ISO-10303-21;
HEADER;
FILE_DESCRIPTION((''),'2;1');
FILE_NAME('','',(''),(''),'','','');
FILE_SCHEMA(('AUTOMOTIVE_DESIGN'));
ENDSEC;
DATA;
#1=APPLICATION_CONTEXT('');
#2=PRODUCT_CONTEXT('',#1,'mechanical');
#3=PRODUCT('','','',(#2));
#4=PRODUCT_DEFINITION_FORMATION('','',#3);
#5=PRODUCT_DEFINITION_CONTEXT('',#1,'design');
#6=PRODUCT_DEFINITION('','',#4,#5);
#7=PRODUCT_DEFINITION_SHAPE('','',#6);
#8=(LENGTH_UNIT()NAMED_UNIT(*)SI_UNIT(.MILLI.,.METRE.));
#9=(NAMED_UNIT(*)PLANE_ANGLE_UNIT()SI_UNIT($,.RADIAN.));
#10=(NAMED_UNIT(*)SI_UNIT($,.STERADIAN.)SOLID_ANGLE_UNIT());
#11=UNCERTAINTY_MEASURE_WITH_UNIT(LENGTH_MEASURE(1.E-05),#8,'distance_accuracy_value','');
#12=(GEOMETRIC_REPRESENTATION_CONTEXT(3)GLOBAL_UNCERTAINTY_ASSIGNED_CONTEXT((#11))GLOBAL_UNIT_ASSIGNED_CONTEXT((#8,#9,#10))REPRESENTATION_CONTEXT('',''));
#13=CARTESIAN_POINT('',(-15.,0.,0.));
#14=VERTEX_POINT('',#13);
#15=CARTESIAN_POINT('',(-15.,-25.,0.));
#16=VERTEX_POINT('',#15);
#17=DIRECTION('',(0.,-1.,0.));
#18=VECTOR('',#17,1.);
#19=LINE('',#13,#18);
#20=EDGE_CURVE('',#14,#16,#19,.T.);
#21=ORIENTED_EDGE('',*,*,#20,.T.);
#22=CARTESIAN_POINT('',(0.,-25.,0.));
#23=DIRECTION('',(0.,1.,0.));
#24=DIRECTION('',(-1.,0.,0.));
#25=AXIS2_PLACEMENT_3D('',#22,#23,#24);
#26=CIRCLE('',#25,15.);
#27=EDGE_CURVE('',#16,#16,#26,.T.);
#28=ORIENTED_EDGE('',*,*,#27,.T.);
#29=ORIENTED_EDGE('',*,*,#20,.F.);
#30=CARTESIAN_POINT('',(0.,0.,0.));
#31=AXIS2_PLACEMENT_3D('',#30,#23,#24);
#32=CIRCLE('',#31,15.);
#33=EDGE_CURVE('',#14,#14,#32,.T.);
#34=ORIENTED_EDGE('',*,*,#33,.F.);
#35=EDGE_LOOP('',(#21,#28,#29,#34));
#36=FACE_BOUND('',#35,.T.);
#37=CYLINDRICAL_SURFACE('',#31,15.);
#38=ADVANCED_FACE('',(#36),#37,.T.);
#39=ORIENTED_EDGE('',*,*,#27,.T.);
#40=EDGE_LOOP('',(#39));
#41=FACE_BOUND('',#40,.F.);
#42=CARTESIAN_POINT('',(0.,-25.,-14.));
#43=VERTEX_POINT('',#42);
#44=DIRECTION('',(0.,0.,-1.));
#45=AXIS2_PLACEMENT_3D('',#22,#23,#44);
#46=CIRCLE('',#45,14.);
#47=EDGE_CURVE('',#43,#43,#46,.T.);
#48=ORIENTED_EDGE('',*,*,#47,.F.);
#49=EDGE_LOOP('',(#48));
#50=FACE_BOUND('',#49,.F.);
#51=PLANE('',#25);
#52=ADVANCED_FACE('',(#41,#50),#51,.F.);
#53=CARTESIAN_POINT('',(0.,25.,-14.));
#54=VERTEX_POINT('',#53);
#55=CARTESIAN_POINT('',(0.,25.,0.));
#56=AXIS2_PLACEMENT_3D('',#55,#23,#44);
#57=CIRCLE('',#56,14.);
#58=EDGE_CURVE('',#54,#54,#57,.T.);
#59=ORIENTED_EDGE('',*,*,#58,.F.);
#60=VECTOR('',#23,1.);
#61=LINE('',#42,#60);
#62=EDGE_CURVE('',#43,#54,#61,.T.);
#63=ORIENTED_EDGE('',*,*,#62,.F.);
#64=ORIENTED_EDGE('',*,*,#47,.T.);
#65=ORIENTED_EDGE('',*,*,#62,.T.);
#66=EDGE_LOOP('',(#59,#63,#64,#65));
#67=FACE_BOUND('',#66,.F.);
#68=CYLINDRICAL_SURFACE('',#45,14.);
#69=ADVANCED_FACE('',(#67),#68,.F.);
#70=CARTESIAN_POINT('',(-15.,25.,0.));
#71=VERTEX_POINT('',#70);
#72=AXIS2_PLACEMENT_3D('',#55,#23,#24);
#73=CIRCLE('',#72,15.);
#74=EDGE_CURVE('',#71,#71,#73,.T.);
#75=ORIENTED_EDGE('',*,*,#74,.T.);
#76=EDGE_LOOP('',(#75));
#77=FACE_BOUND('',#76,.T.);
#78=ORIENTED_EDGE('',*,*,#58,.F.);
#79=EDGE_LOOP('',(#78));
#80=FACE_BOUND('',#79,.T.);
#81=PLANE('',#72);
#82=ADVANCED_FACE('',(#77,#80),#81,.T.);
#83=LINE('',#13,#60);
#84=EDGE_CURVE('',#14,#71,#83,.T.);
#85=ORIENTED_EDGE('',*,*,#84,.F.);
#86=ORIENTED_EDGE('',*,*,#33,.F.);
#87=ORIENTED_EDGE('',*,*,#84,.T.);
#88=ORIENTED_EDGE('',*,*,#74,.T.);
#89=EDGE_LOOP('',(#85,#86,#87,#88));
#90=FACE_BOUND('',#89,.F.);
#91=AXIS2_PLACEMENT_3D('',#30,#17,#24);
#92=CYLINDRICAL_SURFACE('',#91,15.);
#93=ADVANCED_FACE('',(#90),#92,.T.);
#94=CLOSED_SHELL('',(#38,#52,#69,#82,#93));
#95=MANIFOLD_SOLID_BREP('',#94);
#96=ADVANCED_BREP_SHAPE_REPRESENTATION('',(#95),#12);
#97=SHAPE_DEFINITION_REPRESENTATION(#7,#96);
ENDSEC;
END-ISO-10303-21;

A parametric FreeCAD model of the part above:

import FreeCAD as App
import Part
import Sketcher

V = App.Vector

doc = App.newDocument("Part")
params = doc.addObject("Spreadsheet::Sheet", "Params")
for row, (alias, value) in enumerate([
    ("sketch1_diameter", "30 mm"),
    ("pad1_length", "50 mm"),
    ("sketch2_diameter", "28 mm"),
    ("hole_diameter", "28 mm"),
    ("hole_depth", "50 mm"),
], start=1):
    params.set(f"A{row}", alias)
    params.set(f"B{row}", "=" + value)
    params.setAlias(f"B{row}", alias)

body = doc.addObject("PartDesign::Body", "Body")

sketch1 = doc.addObject("Sketcher::SketchObject", "Sketch")
body.addObject(sketch1)
sketch1.AttachmentSupport = (doc.XZ_Plane, [""])
sketch1.MapMode = "FlatFace"
sketch1.addGeometry(Part.Circle(V(0, 0, 0), V(0, 0, 1), 15), False)
sketch1.addConstraint(Sketcher.Constraint("Coincident", 0, 3, -1, 1))
sketch1.addConstraint(Sketcher.Constraint("Diameter", 0, 30.0))
sketch1.setExpression("Constraints[1]", "Params.sketch1_diameter")
pad1 = doc.addObject("PartDesign::Pad", "Pad")
body.addObject(pad1)
pad1.Profile = sketch1
pad1.setExpression("Length", "Params.pad1_length")
pad1.Midplane = True

sketch2 = doc.addObject("Sketcher::SketchObject", "Sketch001")
body.addObject(sketch2)
sketch2.AttachmentSupport = (doc.XZ_Plane, [""])
sketch2.MapMode = "FlatFace"
sketch2.AttachmentOffset = App.Placement(V(0, 0, 25), App.Rotation())
sketch2.addGeometry(Part.Circle(V(0, 0, 0), V(0, 0, 1), 14), False)
sketch2.addConstraint(Sketcher.Constraint("Coincident", 0, 3, -1, 1))
sketch2.addConstraint(Sketcher.Constraint("Diameter", 0, 28.0))
sketch2.setExpression("Constraints[1]", "Params.sketch2_diameter")
doc.recompute()
hole = doc.addObject("PartDesign::Hole", "Hole")
body.addObject(hole)
hole.Profile = sketch2
hole.ThreadType = "None"
hole.setExpression("Diameter", "Params.hole_diameter")
hole.DepthType = "Dimension"
hole.setExpression("Depth", "Params.hole_depth")
hole.DrillPoint = "Flat"

doc.recompute()
